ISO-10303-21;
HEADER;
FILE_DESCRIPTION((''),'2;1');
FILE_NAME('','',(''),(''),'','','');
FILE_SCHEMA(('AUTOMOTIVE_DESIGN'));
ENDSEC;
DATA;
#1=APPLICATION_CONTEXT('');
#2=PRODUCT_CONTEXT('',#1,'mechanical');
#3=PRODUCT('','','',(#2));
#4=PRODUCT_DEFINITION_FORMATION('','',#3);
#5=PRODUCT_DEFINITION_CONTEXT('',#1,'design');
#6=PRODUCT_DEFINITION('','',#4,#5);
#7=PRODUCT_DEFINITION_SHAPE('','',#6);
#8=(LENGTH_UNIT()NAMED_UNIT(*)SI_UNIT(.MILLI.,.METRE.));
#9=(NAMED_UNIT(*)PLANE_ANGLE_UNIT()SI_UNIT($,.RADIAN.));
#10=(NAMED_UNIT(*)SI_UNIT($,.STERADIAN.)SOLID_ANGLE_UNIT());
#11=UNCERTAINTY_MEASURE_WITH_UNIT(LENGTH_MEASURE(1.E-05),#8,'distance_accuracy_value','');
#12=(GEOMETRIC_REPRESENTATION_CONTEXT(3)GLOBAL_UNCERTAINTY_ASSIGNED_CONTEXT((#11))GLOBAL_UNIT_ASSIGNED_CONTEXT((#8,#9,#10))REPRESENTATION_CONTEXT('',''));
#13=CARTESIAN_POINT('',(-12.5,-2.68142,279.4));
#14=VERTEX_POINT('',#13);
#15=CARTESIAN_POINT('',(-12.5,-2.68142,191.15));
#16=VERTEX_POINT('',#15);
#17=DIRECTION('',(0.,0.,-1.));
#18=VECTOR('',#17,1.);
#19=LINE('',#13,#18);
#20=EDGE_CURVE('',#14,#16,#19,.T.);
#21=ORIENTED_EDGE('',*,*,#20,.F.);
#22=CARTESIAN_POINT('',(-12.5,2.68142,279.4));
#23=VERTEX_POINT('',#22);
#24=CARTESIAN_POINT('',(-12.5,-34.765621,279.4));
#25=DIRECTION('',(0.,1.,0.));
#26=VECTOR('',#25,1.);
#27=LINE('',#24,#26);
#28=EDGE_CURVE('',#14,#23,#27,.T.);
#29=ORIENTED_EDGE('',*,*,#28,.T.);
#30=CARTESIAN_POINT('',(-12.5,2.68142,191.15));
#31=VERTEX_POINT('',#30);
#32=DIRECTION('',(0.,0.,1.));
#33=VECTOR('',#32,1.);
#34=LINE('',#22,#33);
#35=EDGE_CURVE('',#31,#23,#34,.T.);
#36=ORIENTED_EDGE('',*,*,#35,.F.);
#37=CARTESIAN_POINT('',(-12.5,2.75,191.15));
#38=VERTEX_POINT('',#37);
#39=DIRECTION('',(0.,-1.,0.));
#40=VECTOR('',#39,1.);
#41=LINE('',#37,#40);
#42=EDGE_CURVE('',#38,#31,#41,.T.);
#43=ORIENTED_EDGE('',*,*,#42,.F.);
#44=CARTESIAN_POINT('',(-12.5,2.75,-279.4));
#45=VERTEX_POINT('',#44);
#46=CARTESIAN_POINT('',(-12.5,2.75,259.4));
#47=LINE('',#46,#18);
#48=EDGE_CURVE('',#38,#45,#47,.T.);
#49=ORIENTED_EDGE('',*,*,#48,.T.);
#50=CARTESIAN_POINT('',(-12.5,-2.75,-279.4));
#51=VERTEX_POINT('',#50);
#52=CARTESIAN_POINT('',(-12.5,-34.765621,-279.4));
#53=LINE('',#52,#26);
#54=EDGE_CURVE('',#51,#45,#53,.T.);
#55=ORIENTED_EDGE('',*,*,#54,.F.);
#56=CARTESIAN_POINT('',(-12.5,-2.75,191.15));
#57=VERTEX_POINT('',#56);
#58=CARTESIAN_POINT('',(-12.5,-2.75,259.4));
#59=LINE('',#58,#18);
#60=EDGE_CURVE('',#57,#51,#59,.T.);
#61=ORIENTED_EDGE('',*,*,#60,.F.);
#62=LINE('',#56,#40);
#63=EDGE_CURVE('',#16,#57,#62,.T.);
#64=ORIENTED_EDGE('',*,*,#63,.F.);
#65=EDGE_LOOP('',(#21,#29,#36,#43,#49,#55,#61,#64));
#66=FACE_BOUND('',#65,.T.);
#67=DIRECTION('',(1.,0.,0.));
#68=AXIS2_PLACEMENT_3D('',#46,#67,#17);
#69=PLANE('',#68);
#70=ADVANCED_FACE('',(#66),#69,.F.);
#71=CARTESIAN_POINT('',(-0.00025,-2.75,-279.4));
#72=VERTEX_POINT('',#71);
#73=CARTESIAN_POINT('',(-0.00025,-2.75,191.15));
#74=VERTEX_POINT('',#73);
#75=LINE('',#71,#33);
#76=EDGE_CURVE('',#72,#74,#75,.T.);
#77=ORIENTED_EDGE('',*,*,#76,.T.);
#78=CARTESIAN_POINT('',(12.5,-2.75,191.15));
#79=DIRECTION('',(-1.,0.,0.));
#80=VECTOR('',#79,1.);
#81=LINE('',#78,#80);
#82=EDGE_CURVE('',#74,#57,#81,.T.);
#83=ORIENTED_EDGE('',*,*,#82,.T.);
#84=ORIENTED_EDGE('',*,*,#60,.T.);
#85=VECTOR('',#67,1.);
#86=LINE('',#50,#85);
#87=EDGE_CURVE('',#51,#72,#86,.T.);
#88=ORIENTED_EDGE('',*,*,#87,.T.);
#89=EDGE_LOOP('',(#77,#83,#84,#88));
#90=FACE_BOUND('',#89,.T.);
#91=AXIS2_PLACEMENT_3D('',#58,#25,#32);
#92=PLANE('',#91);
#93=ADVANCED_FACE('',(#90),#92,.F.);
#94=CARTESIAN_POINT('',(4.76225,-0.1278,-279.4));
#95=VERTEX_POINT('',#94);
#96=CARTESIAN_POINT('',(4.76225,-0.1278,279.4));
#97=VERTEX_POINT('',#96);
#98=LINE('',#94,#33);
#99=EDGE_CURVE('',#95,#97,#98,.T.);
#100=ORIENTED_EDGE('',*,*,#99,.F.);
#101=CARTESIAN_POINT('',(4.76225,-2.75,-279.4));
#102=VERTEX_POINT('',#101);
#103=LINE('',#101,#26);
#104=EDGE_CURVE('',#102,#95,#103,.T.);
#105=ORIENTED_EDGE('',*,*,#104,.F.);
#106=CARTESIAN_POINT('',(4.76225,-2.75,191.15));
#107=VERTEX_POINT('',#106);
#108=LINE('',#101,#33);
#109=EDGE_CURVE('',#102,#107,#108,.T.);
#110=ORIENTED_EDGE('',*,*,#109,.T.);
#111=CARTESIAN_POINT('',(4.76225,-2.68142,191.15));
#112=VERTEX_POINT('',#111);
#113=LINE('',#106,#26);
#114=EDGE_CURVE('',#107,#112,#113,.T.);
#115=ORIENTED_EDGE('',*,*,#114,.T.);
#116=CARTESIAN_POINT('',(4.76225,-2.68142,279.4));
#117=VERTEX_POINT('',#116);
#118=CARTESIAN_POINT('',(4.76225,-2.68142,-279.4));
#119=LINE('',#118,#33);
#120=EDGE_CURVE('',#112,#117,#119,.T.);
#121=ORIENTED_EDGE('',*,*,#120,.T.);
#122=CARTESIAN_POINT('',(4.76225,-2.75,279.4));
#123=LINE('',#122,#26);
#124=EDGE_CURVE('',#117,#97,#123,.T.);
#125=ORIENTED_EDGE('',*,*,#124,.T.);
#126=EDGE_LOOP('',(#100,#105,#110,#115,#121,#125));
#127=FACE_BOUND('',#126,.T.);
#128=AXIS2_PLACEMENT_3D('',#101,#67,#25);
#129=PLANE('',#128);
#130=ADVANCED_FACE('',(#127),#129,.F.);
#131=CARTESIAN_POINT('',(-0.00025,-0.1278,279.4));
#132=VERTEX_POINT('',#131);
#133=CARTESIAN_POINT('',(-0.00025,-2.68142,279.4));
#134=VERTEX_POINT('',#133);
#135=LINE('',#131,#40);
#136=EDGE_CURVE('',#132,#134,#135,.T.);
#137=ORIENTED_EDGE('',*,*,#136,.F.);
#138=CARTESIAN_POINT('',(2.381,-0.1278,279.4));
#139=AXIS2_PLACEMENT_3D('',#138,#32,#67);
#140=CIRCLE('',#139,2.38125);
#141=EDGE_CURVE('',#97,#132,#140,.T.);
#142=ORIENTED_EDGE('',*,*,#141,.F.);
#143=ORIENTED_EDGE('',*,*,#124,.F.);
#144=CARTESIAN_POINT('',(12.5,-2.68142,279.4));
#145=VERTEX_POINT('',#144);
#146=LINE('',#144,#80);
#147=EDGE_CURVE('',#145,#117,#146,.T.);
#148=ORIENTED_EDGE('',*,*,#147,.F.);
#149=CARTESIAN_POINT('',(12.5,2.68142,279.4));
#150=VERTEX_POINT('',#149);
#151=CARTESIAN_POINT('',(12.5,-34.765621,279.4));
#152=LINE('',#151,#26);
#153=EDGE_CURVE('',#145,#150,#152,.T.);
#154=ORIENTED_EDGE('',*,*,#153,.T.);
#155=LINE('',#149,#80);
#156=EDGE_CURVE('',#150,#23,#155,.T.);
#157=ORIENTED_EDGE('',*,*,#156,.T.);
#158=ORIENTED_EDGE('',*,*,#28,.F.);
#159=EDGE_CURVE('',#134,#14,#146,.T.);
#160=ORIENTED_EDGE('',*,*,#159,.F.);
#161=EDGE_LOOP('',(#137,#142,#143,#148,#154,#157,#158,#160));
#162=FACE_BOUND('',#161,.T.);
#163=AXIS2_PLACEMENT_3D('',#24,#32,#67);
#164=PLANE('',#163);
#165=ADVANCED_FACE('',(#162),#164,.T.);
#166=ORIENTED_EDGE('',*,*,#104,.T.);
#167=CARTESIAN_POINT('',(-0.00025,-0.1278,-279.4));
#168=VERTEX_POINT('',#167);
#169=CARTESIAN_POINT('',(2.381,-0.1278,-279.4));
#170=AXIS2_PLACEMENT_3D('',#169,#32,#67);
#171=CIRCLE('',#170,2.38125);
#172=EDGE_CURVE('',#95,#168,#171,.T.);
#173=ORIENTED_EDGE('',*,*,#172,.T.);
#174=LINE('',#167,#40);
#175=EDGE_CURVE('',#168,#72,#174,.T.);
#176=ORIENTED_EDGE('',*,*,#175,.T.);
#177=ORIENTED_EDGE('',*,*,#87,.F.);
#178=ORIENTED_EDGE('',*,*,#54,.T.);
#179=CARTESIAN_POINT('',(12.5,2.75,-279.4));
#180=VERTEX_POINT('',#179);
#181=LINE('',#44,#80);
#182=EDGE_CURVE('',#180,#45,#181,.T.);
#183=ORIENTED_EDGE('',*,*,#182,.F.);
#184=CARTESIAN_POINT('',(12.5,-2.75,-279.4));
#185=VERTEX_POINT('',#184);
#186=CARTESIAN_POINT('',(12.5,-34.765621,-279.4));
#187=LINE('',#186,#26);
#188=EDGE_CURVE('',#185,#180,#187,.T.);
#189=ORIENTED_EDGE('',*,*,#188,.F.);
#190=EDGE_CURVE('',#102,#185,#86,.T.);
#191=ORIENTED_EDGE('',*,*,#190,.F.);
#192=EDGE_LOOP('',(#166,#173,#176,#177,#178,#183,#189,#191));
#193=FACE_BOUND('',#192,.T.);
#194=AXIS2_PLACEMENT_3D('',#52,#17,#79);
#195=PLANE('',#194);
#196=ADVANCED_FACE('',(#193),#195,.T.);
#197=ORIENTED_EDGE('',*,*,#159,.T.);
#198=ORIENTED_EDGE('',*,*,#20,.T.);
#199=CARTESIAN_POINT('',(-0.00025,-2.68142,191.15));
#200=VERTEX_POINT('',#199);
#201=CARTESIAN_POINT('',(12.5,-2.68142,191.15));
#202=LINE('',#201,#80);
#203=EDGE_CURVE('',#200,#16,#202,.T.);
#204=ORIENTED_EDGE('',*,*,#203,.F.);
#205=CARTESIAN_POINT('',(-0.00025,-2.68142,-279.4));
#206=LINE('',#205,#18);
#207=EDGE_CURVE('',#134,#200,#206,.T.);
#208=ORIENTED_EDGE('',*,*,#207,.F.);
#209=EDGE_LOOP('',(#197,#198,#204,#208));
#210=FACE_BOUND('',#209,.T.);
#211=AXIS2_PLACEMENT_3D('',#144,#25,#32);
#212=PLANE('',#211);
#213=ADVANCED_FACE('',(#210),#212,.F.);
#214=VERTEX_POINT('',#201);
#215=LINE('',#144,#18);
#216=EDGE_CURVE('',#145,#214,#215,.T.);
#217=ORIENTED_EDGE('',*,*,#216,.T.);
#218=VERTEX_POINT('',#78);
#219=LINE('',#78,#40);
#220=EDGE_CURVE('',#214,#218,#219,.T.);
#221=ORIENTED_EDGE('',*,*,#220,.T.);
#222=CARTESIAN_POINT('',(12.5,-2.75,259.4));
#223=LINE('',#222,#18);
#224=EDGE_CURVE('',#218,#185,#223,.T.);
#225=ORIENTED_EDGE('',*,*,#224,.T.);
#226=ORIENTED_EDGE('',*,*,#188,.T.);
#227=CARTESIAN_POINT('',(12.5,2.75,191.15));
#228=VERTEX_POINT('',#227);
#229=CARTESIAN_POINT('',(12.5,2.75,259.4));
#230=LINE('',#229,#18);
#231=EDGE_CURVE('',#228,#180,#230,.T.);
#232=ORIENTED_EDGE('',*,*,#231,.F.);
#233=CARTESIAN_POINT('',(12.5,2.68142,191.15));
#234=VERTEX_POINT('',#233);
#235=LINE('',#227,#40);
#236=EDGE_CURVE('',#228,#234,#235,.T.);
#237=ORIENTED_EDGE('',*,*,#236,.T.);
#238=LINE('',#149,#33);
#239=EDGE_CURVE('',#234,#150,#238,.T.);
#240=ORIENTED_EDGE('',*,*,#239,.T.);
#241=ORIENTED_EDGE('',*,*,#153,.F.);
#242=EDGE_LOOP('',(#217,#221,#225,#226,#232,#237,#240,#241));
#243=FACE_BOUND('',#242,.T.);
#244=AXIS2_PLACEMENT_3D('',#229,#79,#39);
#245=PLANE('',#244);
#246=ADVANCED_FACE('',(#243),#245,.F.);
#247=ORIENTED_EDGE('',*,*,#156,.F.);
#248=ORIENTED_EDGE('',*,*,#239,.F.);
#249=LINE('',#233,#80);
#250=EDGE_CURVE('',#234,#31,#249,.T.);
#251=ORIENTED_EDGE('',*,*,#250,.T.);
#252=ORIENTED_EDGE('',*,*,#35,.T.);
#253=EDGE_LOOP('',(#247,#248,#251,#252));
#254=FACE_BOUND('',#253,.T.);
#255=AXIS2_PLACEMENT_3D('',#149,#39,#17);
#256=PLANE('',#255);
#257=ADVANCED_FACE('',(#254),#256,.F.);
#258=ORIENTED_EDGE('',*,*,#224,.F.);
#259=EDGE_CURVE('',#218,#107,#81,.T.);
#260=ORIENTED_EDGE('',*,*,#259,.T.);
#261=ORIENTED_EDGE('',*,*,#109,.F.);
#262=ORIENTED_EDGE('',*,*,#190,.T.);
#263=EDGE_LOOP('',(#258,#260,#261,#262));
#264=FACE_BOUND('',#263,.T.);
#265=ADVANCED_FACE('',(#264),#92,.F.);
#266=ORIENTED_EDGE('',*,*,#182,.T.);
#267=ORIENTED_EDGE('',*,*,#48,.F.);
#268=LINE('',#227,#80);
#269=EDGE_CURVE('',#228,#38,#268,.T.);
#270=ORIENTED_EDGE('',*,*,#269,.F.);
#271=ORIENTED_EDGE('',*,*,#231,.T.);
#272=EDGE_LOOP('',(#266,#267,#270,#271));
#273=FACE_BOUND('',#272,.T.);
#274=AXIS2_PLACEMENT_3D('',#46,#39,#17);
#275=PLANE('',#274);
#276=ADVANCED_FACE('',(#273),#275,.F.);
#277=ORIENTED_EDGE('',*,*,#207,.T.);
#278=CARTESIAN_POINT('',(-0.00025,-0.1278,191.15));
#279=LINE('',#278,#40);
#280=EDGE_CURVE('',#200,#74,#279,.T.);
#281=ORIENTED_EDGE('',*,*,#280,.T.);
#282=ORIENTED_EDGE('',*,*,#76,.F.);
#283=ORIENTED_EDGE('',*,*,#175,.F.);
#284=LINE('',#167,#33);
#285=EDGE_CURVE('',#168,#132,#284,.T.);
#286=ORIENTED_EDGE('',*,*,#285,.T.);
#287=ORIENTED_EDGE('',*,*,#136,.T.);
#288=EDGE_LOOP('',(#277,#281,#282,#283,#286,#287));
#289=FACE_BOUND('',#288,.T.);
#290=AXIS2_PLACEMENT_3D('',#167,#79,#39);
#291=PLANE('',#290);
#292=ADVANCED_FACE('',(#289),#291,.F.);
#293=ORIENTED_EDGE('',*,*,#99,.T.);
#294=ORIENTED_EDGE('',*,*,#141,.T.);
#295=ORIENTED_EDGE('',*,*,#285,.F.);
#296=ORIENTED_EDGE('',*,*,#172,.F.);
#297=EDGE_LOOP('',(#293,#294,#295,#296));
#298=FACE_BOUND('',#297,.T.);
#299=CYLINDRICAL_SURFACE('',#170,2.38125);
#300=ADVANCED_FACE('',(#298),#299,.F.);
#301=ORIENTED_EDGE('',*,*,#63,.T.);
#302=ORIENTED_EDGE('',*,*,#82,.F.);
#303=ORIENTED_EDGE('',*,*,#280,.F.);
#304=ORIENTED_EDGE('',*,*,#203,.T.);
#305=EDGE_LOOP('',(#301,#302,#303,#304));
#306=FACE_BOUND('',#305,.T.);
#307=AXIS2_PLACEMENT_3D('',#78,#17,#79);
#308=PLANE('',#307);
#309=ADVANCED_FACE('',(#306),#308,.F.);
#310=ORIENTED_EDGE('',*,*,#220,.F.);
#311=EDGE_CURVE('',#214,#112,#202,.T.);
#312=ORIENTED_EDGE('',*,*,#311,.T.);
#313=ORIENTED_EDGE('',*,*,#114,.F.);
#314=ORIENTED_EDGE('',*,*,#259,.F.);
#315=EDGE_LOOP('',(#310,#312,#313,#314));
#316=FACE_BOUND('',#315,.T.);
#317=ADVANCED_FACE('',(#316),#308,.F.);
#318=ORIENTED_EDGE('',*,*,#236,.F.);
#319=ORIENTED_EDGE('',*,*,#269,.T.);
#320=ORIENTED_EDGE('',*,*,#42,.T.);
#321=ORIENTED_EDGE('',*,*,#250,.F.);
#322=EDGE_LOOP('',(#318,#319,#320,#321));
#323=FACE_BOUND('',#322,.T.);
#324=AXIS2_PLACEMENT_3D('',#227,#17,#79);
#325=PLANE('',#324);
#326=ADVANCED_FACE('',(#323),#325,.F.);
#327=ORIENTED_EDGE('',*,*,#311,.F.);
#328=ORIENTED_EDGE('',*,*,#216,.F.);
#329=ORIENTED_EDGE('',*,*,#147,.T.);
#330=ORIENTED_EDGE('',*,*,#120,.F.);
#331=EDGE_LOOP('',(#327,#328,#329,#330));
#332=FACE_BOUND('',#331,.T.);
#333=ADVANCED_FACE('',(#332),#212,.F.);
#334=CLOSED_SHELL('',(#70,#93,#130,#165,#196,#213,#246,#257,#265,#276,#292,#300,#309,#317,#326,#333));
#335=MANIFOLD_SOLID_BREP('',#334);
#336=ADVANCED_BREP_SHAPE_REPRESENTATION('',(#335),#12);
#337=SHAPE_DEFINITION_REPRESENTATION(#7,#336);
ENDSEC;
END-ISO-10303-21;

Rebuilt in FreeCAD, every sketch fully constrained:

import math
import FreeCAD as App
import Part
import Sketcher

V = App.Vector

doc = App.newDocument("Part")
body = doc.addObject("PartDesign::Body", "Body")

sketch1 = body.newObject("Sketcher::SketchObject", "Sketch")
sketch1.AttachmentSupport = (doc.getObject("XY_Plane"), [""])
sketch1.MapMode = "FlatFace"
sketch1.addGeometry(Part.LineSegment(V(-12.5, 2.75, 0), V(-12.5, -2.75, 0)), False)
sketch1.addGeometry(Part.LineSegment(V(-12.5, -2.75, 0), V(12.5, -2.75, 0)), False)
sketch1.addGeometry(Part.LineSegment(V(12.5, -2.75, 0), V(12.5, 2.75, 0)), False)
sketch1.addGeometry(Part.LineSegment(V(12.5, 2.75, 0), V(-12.5, 2.75, 0)), False)
sketch1.addConstraint(Sketcher.Constraint("Coincident", 0, 2, 1, 1))
sketch1.addConstraint(Sketcher.Constraint("Coincident", 1, 2, 2, 1))
sketch1.addConstraint(Sketcher.Constraint("Coincident", 2, 2, 3, 1))
sketch1.addConstraint(Sketcher.Constraint("Coincident", 3, 2, 0, 1))
sketch1.addConstraint(Sketcher.Constraint("Vertical", 0))
sketch1.addConstraint(Sketcher.Constraint("Horizontal", 1))
sketch1.addConstraint(Sketcher.Constraint("Vertical", 2))
sketch1.addConstraint(Sketcher.Constraint("Horizontal", 3))
sketch1.addConstraint(Sketcher.Constraint("Symmetric", 0, 2, 2, 2, -1, 1))
sketch1.addConstraint(Sketcher.Constraint("DistanceX", 1, 1, 1, 2, 25.0))
sketch1.addConstraint(Sketcher.Constraint("DistanceY", 0, 2, 0, 1, 5.5))
pad1 = body.newObject("PartDesign::Pad", "Pad")
pad1.Profile = sketch1
pad1.Length = 518.8
pad1.Midplane = True

sketch2 = body.newObject("Sketcher::SketchObject", "Sketch001")
sketch2.AttachmentSupport = (doc.getObject("XZ_Plane"), [""])
sketch2.MapMode = "FlatFace"
sketch2.AttachmentOffset = App.Placement(V(0, 0, -2.75), App.Rotation())
sketch2.addGeometry(Part.LineSegment(V(-12.5, -279.4, 0), V(-12.5, -259.4, 0)), False)
sketch2.addGeometry(Part.LineSegment(V(-12.5, -259.4, 0), V(12.5, -259.4, 0)), False)
sketch2.addGeometry(Part.LineSegment(V(12.5, -259.4, 0), V(12.5, -279.4, 0)), False)
sketch2.addGeometry(Part.LineSegment(V(12.5, -279.4, 0), V(-12.5, -279.4, 0)), False)
sketch2.addGeometry(Part.LineSegment(V(-12.5, 259.4, 0), V(-12.5, 279.4, 0)), False)
sketch2.addGeometry(Part.LineSegment(V(-12.5, 279.4, 0), V(12.5, 279.4, 0)), False)
sketch2.addGeometry(Part.LineSegment(V(12.5, 279.4, 0), V(12.5, 259.4, 0)), False)
sketch2.addGeometry(Part.LineSegment(V(12.5, 259.4, 0), V(-12.5, 259.4, 0)), False)
sketch2.addConstraint(Sketcher.Constraint("Coincident", 0, 2, 1, 1))
sketch2.addConstraint(Sketcher.Constraint("Coincident", 1, 2, 2, 1))
sketch2.addConstraint(Sketcher.Constraint("Coincident", 2, 2, 3, 1))
sketch2.addConstraint(Sketcher.Constraint("Coincident", 3, 2, 0, 1))
sketch2.addConstraint(Sketcher.Constraint("Coincident", 4, 2, 5, 1))
sketch2.addConstraint(Sketcher.Constraint("Coincident", 5, 2, 6, 1))
sketch2.addConstraint(Sketcher.Constraint("Coincident", 6, 2, 7, 1))
sketch2.addConstraint(Sketcher.Constraint("Coincident", 7, 2, 4, 1))
sketch2.addConstraint(Sketcher.Constraint("Vertical", 0))
sketch2.addConstraint(Sketcher.Constraint("Horizontal", 1))
sketch2.addConstraint(Sketcher.Constraint("Vertical", 2))
sketch2.addConstraint(Sketcher.Constraint("Horizontal", 3))
sketch2.addConstraint(Sketcher.Constraint("Vertical", 4))
sketch2.addConstraint(Sketcher.Constraint("Horizontal", 5))
sketch2.addConstraint(Sketcher.Constraint("Vertical", 6))
sketch2.addConstraint(Sketcher.Constraint("Horizontal", 7))
sketch2.addConstraint(Sketcher.Constraint("Symmetric", 2, 2, 4, 2, -1, 1))
sketch2.addConstraint(Sketcher.Constraint("Symmetric", 0, 2, 6, 2, -1, 1))
sketch2.addConstraint(Sketcher.Constraint("Vertical", 3, 2, 4, 2))
sketch2.addConstraint(Sketcher.Constraint("DistanceX", 1, 1, 1, 2, 25.0))
sketch2.addConstraint(Sketcher.Constraint("DistanceY", 0, 1, 0, 2, 20.0))
sketch2.addConstraint(Sketcher.Constraint("DistanceY", 0, 2, -1, 1, 259.4))
pad2 = body.newObject("PartDesign::Pad", "Pad001")
pad2.Profile = sketch2
pad2.Length = 5.5

sketch3 = body.newObject("Sketcher::SketchObject", "Sketch002")
sketch3.AttachmentSupport = (doc.getObject("XY_Plane"), [""])
sketch3.MapMode = "FlatFace"
sketch3.AttachmentOffset = App.Placement(V(0, 0, 279.4), App.Rotation())
sketch3.addGeometry(Part.LineSegment(V(-0.00025, -0.1278, 0), V(-0.00025, -2.75, 0)), False)
sketch3.addGeometry(Part.LineSegment(V(-0.00025, -2.75, 0), V(4.76225, -2.75, 0)), False)
sketch3.addGeometry(Part.LineSegment(V(4.76225, -2.75, 0), V(4.76225, -0.1278, 0)), False)
sketch3.addGeometry(Part.ArcOfCircle(Part.Circle(V(2.381, -0.1278, 0), V(0, 0, 1), 2.38125), math.radians(0), math.radians(180)), False)
sketch3.addConstraint(Sketcher.Constraint("Coincident", 0, 2, 1, 1))
sketch3.addConstraint(Sketcher.Constraint("Coincident", 1, 2, 2, 1))
sketch3.addConstraint(Sketcher.Constraint("Tangent", 2, 2, 3, 1))
sketch3.addConstraint(Sketcher.Constraint("Tangent", 3, 2, 0, 1))
sketch3.addConstraint(Sketcher.Constraint("Vertical", 0))
sketch3.addConstraint(Sketcher.Constraint("Horizontal", 1))
sketch3.addConstraint(Sketcher.Constraint("Vertical", 2))
sketch3.addConstraint(Sketcher.Constraint("DistanceY", 0, 2, -1, 1, 2.75))
sketch3.addConstraint(Sketcher.Constraint("Radius", 3, 2.38125))
sketch3.addConstraint(Sketcher.Constraint("DistanceY", 0, 2, 0, 1, 2.6222))
sketch3.addConstraint(Sketcher.Constraint("DistanceX", -1, 1, 3, 3, 2.381))
pocket1 = body.newObject("PartDesign::Pocket", "Pocket")
pocket1.Profile = sketch3
pocket1.Type = "ThroughAll"

sketch4 = body.newObject("Sketcher::SketchObject", "Sketch003")
sketch4.AttachmentSupport = (doc.getObject("YZ_Plane"), [""])
sketch4.MapMode = "FlatFace"
sketch4.AttachmentOffset = App.Placement(V(0, 0, -12.5), App.Rotation())
sketch4.addGeometry(Part.LineSegment(V(2.75, 191.15, 0), V(2.68142, 191.15, 0)), False)
sketch4.addGeometry(Part.LineSegment(V(2.68142, 191.15, 0), V(2.68142, 279.4, 0)), False)
sketch4.addGeometry(Part.LineSegment(V(2.68142, 279.4, 0), V(2.75, 279.4, 0)), False)
sketch4.addGeometry(Part.LineSegment(V(2.75, 279.4, 0), V(2.75, 191.15, 0)), False)
sketch4.addGeometry(Part.LineSegment(V(-2.68142, 191.15, 0), V(-2.75, 191.15, 0)), False)
sketch4.addGeometry(Part.LineSegment(V(-2.75, 191.15, 0), V(-2.75, 279.4, 0)), False)
sketch4.addGeometry(Part.LineSegment(V(-2.75, 279.4, 0), V(-2.68142, 279.4, 0)), False)
sketch4.addGeometry(Part.LineSegment(V(-2.68142, 279.4, 0), V(-2.68142, 191.15, 0)), False)
sketch4.addConstraint(Sketcher.Constraint("Coincident", 0, 2, 1, 1))
sketch4.addConstraint(Sketcher.Constraint("Coincident", 1, 2, 2, 1))
sketch4.addConstraint(Sketcher.Constraint("Coincident", 2, 2, 3, 1))
sketch4.addConstraint(Sketcher.Constraint("Coincident", 3, 2, 0, 1))
sketch4.addConstraint(Sketcher.Constraint("Coincident", 4, 2, 5, 1))
sketch4.addConstraint(Sketcher.Constraint("Coincident", 5, 2, 6, 1))
sketch4.addConstraint(Sketcher.Constraint("Coincident", 6, 2, 7, 1))
sketch4.addConstraint(Sketcher.Constraint("Coincident", 7, 2, 4, 1))
sketch4.addConstraint(Sketcher.Constraint("Horizontal", 0))
sketch4.addConstraint(Sketcher.Constraint("Vertical", 1))
sketch4.addConstraint(Sketcher.Constraint("Horizontal", 2))
sketch4.addConstraint(Sketcher.Constraint("Vertical", 3))
sketch4.addConstraint(Sketcher.Constraint("Horizontal", 4))
sketch4.addConstraint(Sketcher.Constraint("Vertical", 5))
sketch4.addConstraint(Sketcher.Constraint("Horizontal", 6))
sketch4.addConstraint(Sketcher.Constraint("Vertical", 7))
sketch4.addConstraint(Sketcher.Constraint("Symmetric", 3, 2, 4, 2, -2))
sketch4.addConstraint(Sketcher.Constraint("Symmetric", 1, 2, 6, 2, -2))
sketch4.addConstraint(Sketcher.Constraint("DistanceY", 1, 1, 1, 2, 88.25))
sketch4.addConstraint(Sketcher.Constraint("DistanceY", -1, 1, 1, 2, 279.4))
sketch4.addConstraint(Sketcher.Constraint("DistanceX", 4, 2, 3, 2, 5.5))
sketch4.addConstraint(Sketcher.Constraint("DistanceX", 0, 2, 0, 1, 0.06858))
pocket2 = body.newObject("PartDesign::Pocket", "Pocket001")
pocket2.Profile = sketch4
pocket2.Type = "ThroughAll"
pocket2.Reversed = True

doc.recompute()
